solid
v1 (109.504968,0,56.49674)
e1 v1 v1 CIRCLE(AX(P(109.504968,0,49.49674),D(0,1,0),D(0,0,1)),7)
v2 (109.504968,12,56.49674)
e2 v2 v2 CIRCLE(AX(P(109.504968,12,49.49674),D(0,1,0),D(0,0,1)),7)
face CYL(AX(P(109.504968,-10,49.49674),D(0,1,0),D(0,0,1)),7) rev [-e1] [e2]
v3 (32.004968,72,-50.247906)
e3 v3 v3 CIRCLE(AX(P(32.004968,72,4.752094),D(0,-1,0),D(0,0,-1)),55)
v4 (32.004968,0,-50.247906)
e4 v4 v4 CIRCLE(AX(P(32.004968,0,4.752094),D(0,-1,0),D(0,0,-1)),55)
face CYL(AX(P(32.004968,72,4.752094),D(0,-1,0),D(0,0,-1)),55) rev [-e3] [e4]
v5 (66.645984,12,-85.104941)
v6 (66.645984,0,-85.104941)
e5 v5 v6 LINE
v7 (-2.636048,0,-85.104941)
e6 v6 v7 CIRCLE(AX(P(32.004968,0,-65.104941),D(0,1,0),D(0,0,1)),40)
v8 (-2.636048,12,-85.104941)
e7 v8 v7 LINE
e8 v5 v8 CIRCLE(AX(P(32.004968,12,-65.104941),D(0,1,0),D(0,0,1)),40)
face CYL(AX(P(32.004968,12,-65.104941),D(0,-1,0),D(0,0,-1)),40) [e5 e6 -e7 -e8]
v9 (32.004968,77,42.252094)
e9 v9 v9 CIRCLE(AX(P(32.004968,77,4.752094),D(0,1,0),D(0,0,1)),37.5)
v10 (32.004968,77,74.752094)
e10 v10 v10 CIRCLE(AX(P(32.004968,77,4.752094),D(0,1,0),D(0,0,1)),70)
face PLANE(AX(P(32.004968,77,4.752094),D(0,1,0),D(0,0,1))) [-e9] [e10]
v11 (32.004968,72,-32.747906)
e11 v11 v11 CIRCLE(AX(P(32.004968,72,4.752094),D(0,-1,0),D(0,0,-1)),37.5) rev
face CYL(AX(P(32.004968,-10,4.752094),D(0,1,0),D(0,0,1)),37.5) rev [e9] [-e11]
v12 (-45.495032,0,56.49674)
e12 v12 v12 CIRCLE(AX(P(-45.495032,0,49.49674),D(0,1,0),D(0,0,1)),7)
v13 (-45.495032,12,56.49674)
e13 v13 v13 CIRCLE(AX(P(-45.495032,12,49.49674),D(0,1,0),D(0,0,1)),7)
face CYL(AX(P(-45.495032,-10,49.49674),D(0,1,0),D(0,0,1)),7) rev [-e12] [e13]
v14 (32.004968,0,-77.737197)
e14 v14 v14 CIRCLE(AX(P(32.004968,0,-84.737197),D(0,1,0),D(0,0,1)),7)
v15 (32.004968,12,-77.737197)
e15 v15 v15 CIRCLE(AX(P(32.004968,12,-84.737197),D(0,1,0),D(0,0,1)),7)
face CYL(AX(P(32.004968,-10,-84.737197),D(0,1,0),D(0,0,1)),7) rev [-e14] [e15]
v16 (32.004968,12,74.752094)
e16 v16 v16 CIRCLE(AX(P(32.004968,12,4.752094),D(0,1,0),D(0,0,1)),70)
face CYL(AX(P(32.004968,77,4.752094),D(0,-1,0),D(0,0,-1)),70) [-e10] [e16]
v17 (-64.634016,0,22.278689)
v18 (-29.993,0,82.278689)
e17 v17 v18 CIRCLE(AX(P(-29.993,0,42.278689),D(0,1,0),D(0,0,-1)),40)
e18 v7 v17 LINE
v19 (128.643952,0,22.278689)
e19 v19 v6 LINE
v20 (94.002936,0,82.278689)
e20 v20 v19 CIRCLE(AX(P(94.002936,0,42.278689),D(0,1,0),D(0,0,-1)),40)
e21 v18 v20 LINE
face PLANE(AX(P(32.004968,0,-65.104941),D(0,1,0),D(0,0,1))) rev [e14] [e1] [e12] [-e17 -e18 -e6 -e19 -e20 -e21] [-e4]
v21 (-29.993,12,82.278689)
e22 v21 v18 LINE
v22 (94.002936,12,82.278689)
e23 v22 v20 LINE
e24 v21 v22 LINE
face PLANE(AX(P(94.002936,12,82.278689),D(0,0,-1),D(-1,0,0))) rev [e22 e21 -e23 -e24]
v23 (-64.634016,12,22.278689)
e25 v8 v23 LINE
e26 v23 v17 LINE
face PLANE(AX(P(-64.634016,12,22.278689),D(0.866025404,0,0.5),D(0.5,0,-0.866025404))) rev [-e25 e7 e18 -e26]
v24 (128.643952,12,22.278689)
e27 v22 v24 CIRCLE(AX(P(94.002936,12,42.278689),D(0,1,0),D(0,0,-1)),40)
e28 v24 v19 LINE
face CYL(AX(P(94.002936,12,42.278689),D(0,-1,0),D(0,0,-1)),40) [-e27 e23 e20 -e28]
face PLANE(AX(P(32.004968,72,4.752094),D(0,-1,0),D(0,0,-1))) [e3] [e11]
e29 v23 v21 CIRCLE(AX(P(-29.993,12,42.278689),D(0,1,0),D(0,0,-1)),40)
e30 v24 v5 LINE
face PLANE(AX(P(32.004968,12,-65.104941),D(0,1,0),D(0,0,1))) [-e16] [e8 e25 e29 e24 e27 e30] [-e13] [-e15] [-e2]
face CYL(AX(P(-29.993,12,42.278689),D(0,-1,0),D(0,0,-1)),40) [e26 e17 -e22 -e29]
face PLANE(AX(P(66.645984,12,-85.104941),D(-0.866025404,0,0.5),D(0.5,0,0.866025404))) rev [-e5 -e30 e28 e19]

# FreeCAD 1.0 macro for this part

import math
import FreeCAD as App
import Part
import Sketcher
from FreeCAD import Vector
Q = App.Units.Quantity

doc = App.newDocument("Part")
body = doc.addObject("PartDesign::Body", "Body")

# Sketch on XZ plane
sketch1 = doc.addObject("Sketcher::SketchObject", "Sketch")
body.addObject(sketch1)
sketch1.AttachmentSupport = (doc.XZ_Plane, [""])
sketch1.MapMode = "FlatFace"
sketch1.addGeometry([
    Part.LineSegment(Vector(129, 22, 0), Vector(67, -85, 0)),  # 0
    Part.ArcOfCircle(Part.Circle(Vector(32, -65, 0), Vector(0, 0, 1), 40), math.radians(-150), math.radians(-30)),  # 1
    Part.LineSegment(Vector(-3, -85, 0), Vector(-65, 22, 0)),  # 2
    Part.ArcOfCircle(Part.Circle(Vector(-30, 42, 0), Vector(0, 0, 1), 40), math.radians(90), math.radians(210)),  # 3
    Part.LineSegment(Vector(-30, 82, 0), Vector(94, 82, 0)),  # 4
    Part.ArcOfCircle(Part.Circle(Vector(94, 42, 0), Vector(0, 0, 1), 40), math.radians(-30), math.radians(90)),  # 5
], False)
sketch1.addConstraint([
    Sketcher.Constraint("Tangent", 0, 2, 1, 2),
    Sketcher.Constraint("Tangent", 1, 1, 2, 1),
    Sketcher.Constraint("Tangent", 2, 2, 3, 2),
    Sketcher.Constraint("Tangent", 3, 1, 4, 1),
    Sketcher.Constraint("Tangent", 4, 2, 5, 2),
    Sketcher.Constraint("Tangent", 5, 1, 0, 1),
    Sketcher.Constraint("Horizontal", 4),
    Sketcher.Constraint("Equal", 1, 3),
    Sketcher.Constraint("Equal", 3, 5),
    Sketcher.Constraint("Horizontal", 0, 2, 1, 1),
    Sketcher.Constraint("Radius", 1, Q("40 mm")),
    Sketcher.Constraint("Angle", 0, Q("-120 deg")),
    Sketcher.Constraint("DistanceX", 2, 2, 0, 2, Q("131.28 mm")),
    Sketcher.Constraint("DistanceX", 3, 3, -1, 1, Q("29.993 mm")),
    Sketcher.Constraint("DistanceY", 1, 3, -1, 1, Q("65.104941 mm")),
])
pad1 = doc.addObject("PartDesign::Pad", "Pad")
body.addObject(pad1)
pad1.Profile = sketch1
pad1.Length = 12
pad1.Reversed = True

# Sketch on XZ plane
sketch2 = doc.addObject("Sketcher::SketchObject", "Sketch001")
body.addObject(sketch2)
sketch2.AttachmentSupport = (doc.XZ_Plane, [""])
sketch2.MapMode = "FlatFace"
sketch2.AttachmentOffset = App.Placement(Vector(0, 0, -12), App.Rotation())
sketch2.addGeometry(Part.Circle(Vector(32, 5, 0), Vector(0, 0, 1), 38), False)
sketch2.addConstraint([
    Sketcher.Constraint("Diameter", 0, Q("75 mm")),
    Sketcher.Constraint("DistanceX", -1, 1, 0, 3, Q("32.004968 mm")),
    Sketcher.Constraint("DistanceY", -1, 1, 0, 3, Q("4.752094 mm")),
])
pocket1 = doc.addObject("PartDesign::Pocket", "Pocket")
body.addObject(pocket1)
pocket1.Profile = sketch2
pocket1.Length = 22
pocket1.Reversed = True

# Sketch on XZ plane
sketch3 = doc.addObject("Sketcher::SketchObject", "Sketch002")
body.addObject(sketch3)
sketch3.AttachmentSupport = (doc.XZ_Plane, [""])
sketch3.MapMode = "FlatFace"
sketch3.AttachmentOffset = App.Placement(Vector(0, 0, -12), App.Rotation())
sketch3.addGeometry([
    Part.Circle(Vector(110, 49, 0), Vector(0, 0, 1), 7),
    Part.Circle(Vector(32, -85, 0), Vector(0, 0, 1), 7),
    Part.Circle(Vector(-45, 49, 0), Vector(0, 0, 1), 7),
], False)
sketch3.addConstraint([
    Sketcher.Constraint("Equal", 0, 1),
    Sketcher.Constraint("Equal", 1, 2),
    Sketcher.Constraint("Horizontal", 0, 3, 2, 3),
    Sketcher.Constraint("Diameter", 0, Q("14 mm")),
    Sketcher.Constraint("DistanceX", 2, 3, 0, 3, Q("155 mm")),
    Sketcher.Constraint("DistanceX", 1, 3, 0, 3, Q("77.5 mm")),
    Sketcher.Constraint("DistanceX", -1, 1, 0, 3, Q("109.504968 mm")),
    Sketcher.Constraint("DistanceY", -1, 1, 0, 3, Q("49.49674 mm")),
    Sketcher.Constraint("DistanceY", 1, 3, -1, 1, Q("84.737197 mm")),
])
pocket2 = doc.addObject("PartDesign::Pocket", "Pocket001")
body.addObject(pocket2)
pocket2.Profile = sketch3
pocket2.Length = 22
pocket2.Reversed = True

# Sketch on XZ plane
sketch4 = doc.addObject("Sketcher::SketchObject", "Sketch003")
body.addObject(sketch4)
sketch4.AttachmentSupport = (doc.XZ_Plane, [""])
sketch4.MapMode = "FlatFace"
sketch4.AttachmentOffset = App.Placement(Vector(0, 0, -12), App.Rotation())
sketch4.addGeometry(Part.Circle(Vector(32, 5, 0), Vector(0, 0, 1), 70), False)
sketch4.addConstraint([
    Sketcher.Constraint("Diameter", 0, Q("140 mm")),
    Sketcher.Constraint("DistanceX", -1, 1, 0, 3, Q("32.004968 mm")),
    Sketcher.Constraint("DistanceY", -1, 1, 0, 3, Q("4.752094 mm")),
])
pad2 = doc.addObject("PartDesign::Pad", "Pad001")
body.addObject(pad2)
pad2.Profile = sketch4
pad2.Length = 65
pad2.Reversed = True

# Sketch on XZ plane
sketch5 = doc.addObject("Sketcher::SketchObject", "Sketch004")
body.addObject(sketch5)
sketch5.AttachmentSupport = (doc.XZ_Plane, [""])
sketch5.MapMode = "FlatFace"
sketch5.AttachmentOffset = App.Placement(Vector(0, 0, -92), App.Rotation())
sketch5.addGeometry(Part.Circle(Vector(32, 5, 0), Vector(0, 0, 1), 38), False)
sketch5.addConstraint([
    Sketcher.Constraint("Diameter", 0, Q("75 mm")),
    Sketcher.Constraint("DistanceX", -1, 1, 0, 3, Q("32.004968 mm")),
    Sketcher.Constraint("DistanceY", -1, 1, 0, 3, Q("4.752094 mm")),
])
pocket3 = doc.addObject("PartDesign::Pocket", "Pocket002")
body.addObject(pocket3)
pocket3.Profile = sketch5
pocket3.Length = 80
pocket3.Reversed = True

# Sketch on XZ plane
sketch6 = doc.addObject("Sketcher::SketchObject", "Sketch005")
body.addObject(sketch6)
sketch6.AttachmentSupport = (doc.XZ_Plane, [""])
sketch6.MapMode = "FlatFace"
sketch6.addGeometry(Part.Circle(Vector(32, 5, 0), Vector(0, 0, 1), 55), False)
sketch6.addConstraint([
    Sketcher.Constraint("Diameter", 0, Q("110 mm")),
    Sketcher.Constraint("DistanceX", -1, 1, 0, 3, Q("32.004968 mm")),
    Sketcher.Constraint("DistanceY", -1, 1, 0, 3, Q("4.752094 mm")),
])
pocket4 = doc.addObject("PartDesign::Pocket", "Pocket003")
body.addObject(pocket4)
pocket4.Profile = sketch6
pocket4.Length = 72

doc.recompute()
